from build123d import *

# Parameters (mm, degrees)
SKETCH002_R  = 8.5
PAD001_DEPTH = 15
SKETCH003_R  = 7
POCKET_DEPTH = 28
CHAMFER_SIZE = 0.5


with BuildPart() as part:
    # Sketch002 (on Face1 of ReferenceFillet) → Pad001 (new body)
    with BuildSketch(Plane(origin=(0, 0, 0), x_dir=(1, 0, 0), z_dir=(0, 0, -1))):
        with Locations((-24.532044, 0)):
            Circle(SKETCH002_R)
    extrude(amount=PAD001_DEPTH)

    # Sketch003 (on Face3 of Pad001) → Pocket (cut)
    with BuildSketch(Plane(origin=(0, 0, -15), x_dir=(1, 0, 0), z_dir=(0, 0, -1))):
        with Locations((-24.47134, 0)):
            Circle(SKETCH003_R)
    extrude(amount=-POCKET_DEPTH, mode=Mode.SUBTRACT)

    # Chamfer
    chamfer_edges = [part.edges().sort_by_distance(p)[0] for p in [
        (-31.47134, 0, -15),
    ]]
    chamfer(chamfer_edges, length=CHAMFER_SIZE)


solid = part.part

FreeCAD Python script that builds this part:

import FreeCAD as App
import Part
import Sketcher

V = App.Vector


def edges_at(feature, points):
    """Names of the edges that pass closest to the given points."""
    edges = feature.Shape.Edges
    near = lambda p: min(range(len(edges)), key=lambda i: edges[i].distToShape(Part.Vertex(*p))[0])
    return sorted({f"Edge{near(p) + 1}" for p in points})

doc = App.newDocument("Part")
body = doc.addObject("PartDesign::Body", "Body")

# Sketch on XY plane
sketch1 = body.newObject("Sketcher::SketchObject", "Sketch")
sketch1.AttachmentSupport = (doc.getObject("XY_Plane"), [""])
sketch1.MapMode = "FlatFace"
sketch1.addGeometry(Part.Circle(V(-25, 0, 0), V(0, 0, 1), 8), False)
sketch1.addConstraint([
    Sketcher.Constraint("PointOnObject", 0, 3, -1),
    Sketcher.Constraint("Diameter", 0, 17.0),
    Sketcher.Constraint("DistanceX", 0, 3, -1, 1, 24.532044),
])
pad1 = body.newObject("PartDesign::Pad", "Pad")
pad1.Profile = sketch1
pad1.Length = 15
pad1.Reversed = True

# Sketch on XY plane
sketch2 = body.newObject("Sketcher::SketchObject", "Sketch001")
sketch2.AttachmentSupport = (doc.getObject("XY_Plane"), [""])
sketch2.MapMode = "FlatFace"
sketch2.AttachmentOffset = App.Placement(V(0, 0, -15), App.Rotation())
sketch2.addGeometry(Part.Circle(V(-24, 0, 0), V(0, 0, 1), 7), False)
sketch2.addConstraint([
    Sketcher.Constraint("PointOnObject", 0, 3, -1),
    Sketcher.Constraint("Diameter", 0, 14.0),
    Sketcher.Constraint("DistanceX", 0, 3, -1, 1, 24.47134),
])
pocket1 = body.newObject("PartDesign::Pocket", "Pocket")
pocket1.Profile = sketch2
pocket1.Length = 28
pocket1.Reversed = True
doc.recompute()

chamfer = body.newObject("PartDesign::Chamfer", "Chamfer")
chamfer.Base = (pocket1, edges_at(pocket1, [(-31.471, 0, -15)]))
chamfer.Size = 0.5

doc.recompute()
